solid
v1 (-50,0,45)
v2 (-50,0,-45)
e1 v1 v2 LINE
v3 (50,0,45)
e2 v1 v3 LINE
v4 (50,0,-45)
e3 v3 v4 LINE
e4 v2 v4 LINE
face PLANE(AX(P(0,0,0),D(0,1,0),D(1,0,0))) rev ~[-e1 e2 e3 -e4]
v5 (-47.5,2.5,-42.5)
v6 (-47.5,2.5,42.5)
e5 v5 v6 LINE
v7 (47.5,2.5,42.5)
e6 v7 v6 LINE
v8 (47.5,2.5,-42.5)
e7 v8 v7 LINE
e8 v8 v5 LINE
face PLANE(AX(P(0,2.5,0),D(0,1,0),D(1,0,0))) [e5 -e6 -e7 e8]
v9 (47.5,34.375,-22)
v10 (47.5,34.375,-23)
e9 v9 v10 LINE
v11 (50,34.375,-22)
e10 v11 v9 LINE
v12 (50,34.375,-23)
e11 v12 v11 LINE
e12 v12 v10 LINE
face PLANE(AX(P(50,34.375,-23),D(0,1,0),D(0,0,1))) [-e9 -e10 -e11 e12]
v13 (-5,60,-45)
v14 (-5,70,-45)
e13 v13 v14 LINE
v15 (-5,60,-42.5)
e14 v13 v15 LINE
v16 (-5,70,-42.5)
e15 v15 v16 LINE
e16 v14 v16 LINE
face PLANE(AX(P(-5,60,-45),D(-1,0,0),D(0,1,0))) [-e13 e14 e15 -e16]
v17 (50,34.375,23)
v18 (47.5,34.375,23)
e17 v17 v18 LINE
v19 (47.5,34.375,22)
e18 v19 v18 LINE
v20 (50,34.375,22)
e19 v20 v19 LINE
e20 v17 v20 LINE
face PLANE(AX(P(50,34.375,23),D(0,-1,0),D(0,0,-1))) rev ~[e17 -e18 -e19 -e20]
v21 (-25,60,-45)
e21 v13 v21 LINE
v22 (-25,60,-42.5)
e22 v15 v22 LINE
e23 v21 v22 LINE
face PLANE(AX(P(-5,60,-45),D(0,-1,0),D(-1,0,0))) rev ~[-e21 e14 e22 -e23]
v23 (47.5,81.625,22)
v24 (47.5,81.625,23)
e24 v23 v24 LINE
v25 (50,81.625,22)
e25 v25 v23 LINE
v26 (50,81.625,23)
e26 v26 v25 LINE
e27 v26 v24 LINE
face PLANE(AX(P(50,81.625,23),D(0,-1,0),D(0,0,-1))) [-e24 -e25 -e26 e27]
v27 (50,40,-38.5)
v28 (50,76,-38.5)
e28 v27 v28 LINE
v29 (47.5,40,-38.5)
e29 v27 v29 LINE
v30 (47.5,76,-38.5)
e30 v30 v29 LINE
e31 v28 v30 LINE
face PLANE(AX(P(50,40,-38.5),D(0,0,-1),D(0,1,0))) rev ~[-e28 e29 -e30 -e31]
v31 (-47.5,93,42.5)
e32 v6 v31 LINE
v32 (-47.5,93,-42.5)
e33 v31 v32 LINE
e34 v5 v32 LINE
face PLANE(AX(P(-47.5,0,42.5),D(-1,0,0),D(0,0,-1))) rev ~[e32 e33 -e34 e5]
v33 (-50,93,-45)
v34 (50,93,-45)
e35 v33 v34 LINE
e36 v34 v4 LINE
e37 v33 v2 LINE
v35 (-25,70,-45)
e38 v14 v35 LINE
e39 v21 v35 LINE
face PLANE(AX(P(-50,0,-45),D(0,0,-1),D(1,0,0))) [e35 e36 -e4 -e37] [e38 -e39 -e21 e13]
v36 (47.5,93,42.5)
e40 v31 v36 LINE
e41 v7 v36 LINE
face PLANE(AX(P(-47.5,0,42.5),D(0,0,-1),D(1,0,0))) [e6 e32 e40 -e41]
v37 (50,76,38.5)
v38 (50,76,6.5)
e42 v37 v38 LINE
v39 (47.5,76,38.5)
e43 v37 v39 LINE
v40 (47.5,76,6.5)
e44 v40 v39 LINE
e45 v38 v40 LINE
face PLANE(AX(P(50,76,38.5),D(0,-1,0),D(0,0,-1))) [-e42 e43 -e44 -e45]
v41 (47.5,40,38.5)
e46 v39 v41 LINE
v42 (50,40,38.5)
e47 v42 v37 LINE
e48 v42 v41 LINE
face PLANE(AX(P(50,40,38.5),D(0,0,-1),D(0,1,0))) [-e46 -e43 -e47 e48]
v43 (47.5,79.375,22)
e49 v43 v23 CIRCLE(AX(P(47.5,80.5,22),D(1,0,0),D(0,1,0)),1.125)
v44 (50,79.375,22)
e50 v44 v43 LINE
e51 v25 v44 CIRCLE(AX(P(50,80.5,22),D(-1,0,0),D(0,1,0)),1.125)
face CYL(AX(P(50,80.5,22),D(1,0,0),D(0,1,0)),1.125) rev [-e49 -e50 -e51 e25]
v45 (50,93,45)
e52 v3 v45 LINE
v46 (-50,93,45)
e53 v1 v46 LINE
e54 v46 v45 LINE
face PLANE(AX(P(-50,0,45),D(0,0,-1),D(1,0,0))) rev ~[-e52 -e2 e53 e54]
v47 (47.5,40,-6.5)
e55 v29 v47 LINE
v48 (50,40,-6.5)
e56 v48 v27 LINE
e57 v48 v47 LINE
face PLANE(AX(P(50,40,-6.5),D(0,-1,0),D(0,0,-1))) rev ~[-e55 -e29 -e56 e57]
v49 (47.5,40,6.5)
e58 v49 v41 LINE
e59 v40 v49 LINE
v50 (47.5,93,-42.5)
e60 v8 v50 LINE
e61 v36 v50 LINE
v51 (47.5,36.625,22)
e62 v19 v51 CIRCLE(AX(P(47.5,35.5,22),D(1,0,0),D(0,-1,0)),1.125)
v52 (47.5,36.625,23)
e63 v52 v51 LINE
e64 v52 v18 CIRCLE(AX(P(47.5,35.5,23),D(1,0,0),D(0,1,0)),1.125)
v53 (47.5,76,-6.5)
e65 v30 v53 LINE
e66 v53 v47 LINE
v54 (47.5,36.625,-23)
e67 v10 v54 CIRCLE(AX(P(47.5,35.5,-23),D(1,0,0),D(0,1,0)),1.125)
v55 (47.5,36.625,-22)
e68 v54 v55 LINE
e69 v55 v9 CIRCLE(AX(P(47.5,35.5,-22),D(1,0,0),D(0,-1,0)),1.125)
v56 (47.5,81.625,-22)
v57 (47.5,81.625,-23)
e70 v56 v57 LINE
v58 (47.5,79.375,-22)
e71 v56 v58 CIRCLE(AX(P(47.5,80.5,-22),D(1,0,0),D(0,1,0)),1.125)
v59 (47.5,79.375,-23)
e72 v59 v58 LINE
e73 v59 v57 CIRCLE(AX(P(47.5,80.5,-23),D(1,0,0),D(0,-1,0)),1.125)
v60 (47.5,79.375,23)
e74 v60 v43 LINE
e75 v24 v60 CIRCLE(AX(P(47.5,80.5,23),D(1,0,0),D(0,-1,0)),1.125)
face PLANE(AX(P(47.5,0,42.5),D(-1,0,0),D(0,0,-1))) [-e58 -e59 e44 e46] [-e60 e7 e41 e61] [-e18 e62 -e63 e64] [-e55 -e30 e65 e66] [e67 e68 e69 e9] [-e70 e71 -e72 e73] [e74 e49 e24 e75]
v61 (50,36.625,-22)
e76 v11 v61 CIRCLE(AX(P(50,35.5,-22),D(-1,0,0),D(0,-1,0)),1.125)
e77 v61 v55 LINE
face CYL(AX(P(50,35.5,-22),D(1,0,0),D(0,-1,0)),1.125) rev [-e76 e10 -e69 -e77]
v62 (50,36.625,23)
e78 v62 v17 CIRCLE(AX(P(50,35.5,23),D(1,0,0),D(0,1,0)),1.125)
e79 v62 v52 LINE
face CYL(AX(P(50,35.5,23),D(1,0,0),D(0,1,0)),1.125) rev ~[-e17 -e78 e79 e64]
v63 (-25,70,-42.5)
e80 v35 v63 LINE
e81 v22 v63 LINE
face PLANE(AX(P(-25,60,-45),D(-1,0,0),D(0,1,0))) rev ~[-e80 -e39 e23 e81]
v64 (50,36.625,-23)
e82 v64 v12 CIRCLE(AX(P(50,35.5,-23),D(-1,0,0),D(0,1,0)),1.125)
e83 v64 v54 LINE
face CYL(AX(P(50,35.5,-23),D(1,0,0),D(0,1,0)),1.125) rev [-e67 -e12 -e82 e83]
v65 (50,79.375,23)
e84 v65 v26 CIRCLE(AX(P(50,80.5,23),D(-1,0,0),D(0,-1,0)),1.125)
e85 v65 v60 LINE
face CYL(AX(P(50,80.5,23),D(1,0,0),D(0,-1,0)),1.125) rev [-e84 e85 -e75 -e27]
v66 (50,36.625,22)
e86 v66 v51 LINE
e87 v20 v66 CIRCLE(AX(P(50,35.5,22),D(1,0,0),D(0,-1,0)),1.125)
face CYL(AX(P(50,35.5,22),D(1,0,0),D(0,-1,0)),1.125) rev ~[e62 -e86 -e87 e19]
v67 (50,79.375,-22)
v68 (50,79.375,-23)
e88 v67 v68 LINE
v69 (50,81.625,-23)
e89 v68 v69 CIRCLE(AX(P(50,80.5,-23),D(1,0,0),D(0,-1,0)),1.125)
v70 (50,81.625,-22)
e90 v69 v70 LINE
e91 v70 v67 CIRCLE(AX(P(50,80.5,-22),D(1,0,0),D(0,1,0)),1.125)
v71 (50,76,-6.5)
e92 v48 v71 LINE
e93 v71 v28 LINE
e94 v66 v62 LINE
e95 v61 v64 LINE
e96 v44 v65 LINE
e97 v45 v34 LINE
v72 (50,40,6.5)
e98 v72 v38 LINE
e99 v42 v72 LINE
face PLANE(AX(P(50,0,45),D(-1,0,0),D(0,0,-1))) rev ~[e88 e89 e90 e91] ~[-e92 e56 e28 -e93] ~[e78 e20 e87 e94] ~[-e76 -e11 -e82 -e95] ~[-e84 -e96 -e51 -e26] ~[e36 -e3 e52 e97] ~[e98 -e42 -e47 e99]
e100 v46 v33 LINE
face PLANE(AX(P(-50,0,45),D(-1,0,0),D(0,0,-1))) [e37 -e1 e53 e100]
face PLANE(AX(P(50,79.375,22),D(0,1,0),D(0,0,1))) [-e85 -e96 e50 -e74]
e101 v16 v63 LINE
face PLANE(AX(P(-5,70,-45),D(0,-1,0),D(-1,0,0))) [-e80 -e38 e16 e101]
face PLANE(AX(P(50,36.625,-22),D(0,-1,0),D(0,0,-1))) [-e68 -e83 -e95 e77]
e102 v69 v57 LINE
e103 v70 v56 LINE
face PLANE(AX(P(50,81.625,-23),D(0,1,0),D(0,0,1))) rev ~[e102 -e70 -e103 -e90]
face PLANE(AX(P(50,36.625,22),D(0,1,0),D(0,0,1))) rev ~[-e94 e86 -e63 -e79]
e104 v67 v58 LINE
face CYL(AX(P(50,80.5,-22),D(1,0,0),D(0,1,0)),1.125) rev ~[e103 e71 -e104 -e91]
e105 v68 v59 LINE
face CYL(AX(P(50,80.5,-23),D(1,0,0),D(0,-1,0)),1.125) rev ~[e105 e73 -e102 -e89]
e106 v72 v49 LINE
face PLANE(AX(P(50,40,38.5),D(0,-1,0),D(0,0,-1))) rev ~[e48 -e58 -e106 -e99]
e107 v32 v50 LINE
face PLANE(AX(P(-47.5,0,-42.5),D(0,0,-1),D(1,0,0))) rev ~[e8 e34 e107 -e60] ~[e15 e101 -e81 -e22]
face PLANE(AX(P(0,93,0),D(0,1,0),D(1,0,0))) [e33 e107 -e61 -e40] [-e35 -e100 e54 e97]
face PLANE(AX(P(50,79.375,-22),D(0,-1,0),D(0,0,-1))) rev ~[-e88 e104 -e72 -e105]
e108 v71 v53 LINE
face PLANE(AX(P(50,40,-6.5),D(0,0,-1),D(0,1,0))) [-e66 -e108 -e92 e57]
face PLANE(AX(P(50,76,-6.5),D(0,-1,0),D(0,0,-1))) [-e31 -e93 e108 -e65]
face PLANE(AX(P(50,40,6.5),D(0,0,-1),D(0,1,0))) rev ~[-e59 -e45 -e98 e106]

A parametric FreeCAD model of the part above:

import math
import FreeCAD as App
import Part
import Sketcher
Q = App.Units.Quantity

doc = App.newDocument("Part")
body = doc.addObject("PartDesign::Body", "Body")

# Sketch on XZ plane
sketch1 = body.newObject("Sketcher::SketchObject", "Sketch")
sketch1.AttachmentSupport = (doc.getObject("XZ_Plane"), [""])
sketch1.MapMode = "FlatFace"
sketch1.addGeometry(Part.LineSegment(App.Vector(-50, -45, 0), App.Vector(-50, 45, 0)), False)
sketch1.addGeometry(Part.LineSegment(App.Vector(-50, 45, 0), App.Vector(50, 45, 0)), False)
sketch1.addGeometry(Part.LineSegment(App.Vector(50, 45, 0), App.Vector(50, -45, 0)), False)
sketch1.addGeometry(Part.LineSegment(App.Vector(50, -45, 0), App.Vector(-50, -45, 0)), False)
sketch1.addConstraint(Sketcher.Constraint("Coincident", 0, 2, 1, 1))
sketch1.addConstraint(Sketcher.Constraint("Coincident", 1, 2, 2, 1))
sketch1.addConstraint(Sketcher.Constraint("Coincident", 2, 2, 3, 1))
sketch1.addConstraint(Sketcher.Constraint("Coincident", 3, 2, 0, 1))
sketch1.addConstraint(Sketcher.Constraint("Vertical", 0))
sketch1.addConstraint(Sketcher.Constraint("Horizontal", 1))
sketch1.addConstraint(Sketcher.Constraint("Vertical", 2))
sketch1.addConstraint(Sketcher.Constraint("Horizontal", 3))
sketch1.addConstraint(Sketcher.Constraint("Symmetric", 0, 2, 2, 2, -1, 1))
sketch1.addConstraint(Sketcher.Constraint("DistanceX", 1, 1, 1, 2, Q("100 mm")))
sketch1.addConstraint(Sketcher.Constraint("DistanceY", 0, 1, 0, 2, Q("90 mm")))
pad1 = body.newObject("PartDesign::Pad", "Pad")
pad1.Profile = sketch1
pad1.Length = 2.5
pad1.Reversed = True

# Sketch on XZ plane
sketch2 = body.newObject("Sketcher::SketchObject", "Sketch001")
sketch2.AttachmentSupport = (doc.getObject("XZ_Plane"), [""])
sketch2.MapMode = "FlatFace"
sketch2.addGeometry(Part.LineSegment(App.Vector(-50, -45, 0), App.Vector(-50, 45, 0)), False)
sketch2.addGeometry(Part.LineSegment(App.Vector(-50, 45, 0), App.Vector(50, 45, 0)), False)
sketch2.addGeometry(Part.LineSegment(App.Vector(50, 45, 0), App.Vector(50, -45, 0)), False)
sketch2.addGeometry(Part.LineSegment(App.Vector(50, -45, 0), App.Vector(-50, -45, 0)), False)
sketch2.addGeometry(Part.LineSegment(App.Vector(48, 42, 0), App.Vector(-48, 42, 0)), False)
sketch2.addGeometry(Part.LineSegment(App.Vector(-48, 42, 0), App.Vector(-48, -42, 0)), False)
sketch2.addGeometry(Part.LineSegment(App.Vector(-48, -42, 0), App.Vector(48, -42, 0)), False)
sketch2.addGeometry(Part.LineSegment(App.Vector(48, -42, 0), App.Vector(48, 42, 0)), False)
sketch2.addConstraint(Sketcher.Constraint("Coincident", 0, 2, 1, 1))
sketch2.addConstraint(Sketcher.Constraint("Coincident", 1, 2, 2, 1))
sketch2.addConstraint(Sketcher.Constraint("Coincident", 2, 2, 3, 1))
sketch2.addConstraint(Sketcher.Constraint("Coincident", 3, 2, 0, 1))
sketch2.addConstraint(Sketcher.Constraint("Coincident", 4, 2, 5, 1))
sketch2.addConstraint(Sketcher.Constraint("Coincident", 5, 2, 6, 1))
sketch2.addConstraint(Sketcher.Constraint("Coincident", 6, 2, 7, 1))
sketch2.addConstraint(Sketcher.Constraint("Coincident", 7, 2, 4, 1))
sketch2.addConstraint(Sketcher.Constraint("Vertical", 0))
sketch2.addConstraint(Sketcher.Constraint("Horizontal", 1))
sketch2.addConstraint(Sketcher.Constraint("Vertical", 2))
sketch2.addConstraint(Sketcher.Constraint("Horizontal", 3))
sketch2.addConstraint(Sketcher.Constraint("Horizontal", 4))
sketch2.addConstraint(Sketcher.Constraint("Vertical", 5))
sketch2.addConstraint(Sketcher.Constraint("Horizontal", 6))
sketch2.addConstraint(Sketcher.Constraint("Vertical", 7))
sketch2.addConstraint(Sketcher.Constraint("Symmetric", 0, 2, 2, 2, -1, 1))
sketch2.addConstraint(Sketcher.Constraint("Symmetric", 4, 2, 6, 2, -1, 1))
sketch2.addConstraint(Sketcher.Constraint("DistanceX", 1, 1, 1, 2, Q("100 mm")))
sketch2.addConstraint(Sketcher.Constraint("DistanceX", 4, 2, 4, 1, Q("95 mm")))
sketch2.addConstraint(Sketcher.Constraint("DistanceY", 0, 1, 0, 2, Q("90 mm")))
sketch2.addConstraint(Sketcher.Constraint("DistanceY", 5, 2, 5, 1, Q("85 mm")))
pad2 = body.newObject("PartDesign::Pad", "Pad001")
pad2.Profile = sketch2
pad2.Length = 93
pad2.Reversed = True

# Sketch on YZ plane
sketch3 = body.newObject("Sketcher::SketchObject", "Sketch002")
sketch3.AttachmentSupport = (doc.getObject("YZ_Plane"), [""])
sketch3.MapMode = "FlatFace"
sketch3.AttachmentOffset = App.Placement(App.Vector(0, 0, 50), App.Rotation())
sketch3.addGeometry(Part.LineSegment(App.Vector(76, 38.5, 0), App.Vector(40, 38.5, 0)), False)
sketch3.addGeometry(Part.LineSegment(App.Vector(40, 38.5, 0), App.Vector(40, 6.5, 0)), False)
sketch3.addGeometry(Part.LineSegment(App.Vector(40, 6.5, 0), App.Vector(76, 6.5, 0)), False)
sketch3.addGeometry(Part.LineSegment(App.Vector(76, 6.5, 0), App.Vector(76, 38.5, 0)), False)
sketch3.addGeometry(Part.LineSegment(App.Vector(81.6, 22, 0), App.Vector(81.6, 23, 0)), False)
sketch3.addGeometry(Part.ArcOfCircle(Part.Circle(App.Vector(80.5, 23, 0), App.Vector(0, 0, 1), 1.1), math.radians(0), math.radians(180)), False)
sketch3.addGeometry(Part.LineSegment(App.Vector(79.4, 23, 0), App.Vector(79.4, 22, 0)), False)
sketch3.addGeometry(Part.ArcOfCircle(Part.Circle(App.Vector(80.5, 22, 0), App.Vector(0, 0, 1), 1.1), math.radians(180), math.radians(360)), False)
sketch3.addGeometry(Part.LineSegment(App.Vector(34.4, 23, 0), App.Vector(34.4, 22, 0)), False)
sketch3.addGeometry(Part.ArcOfCircle(Part.Circle(App.Vector(35.5, 22, 0), App.Vector(0, 0, 1), 1.1), math.radians(180), math.radians(360)), False)
sketch3.addGeometry(Part.LineSegment(App.Vector(36.6, 22, 0), App.Vector(36.6, 23, 0)), False)
sketch3.addGeometry(Part.ArcOfCircle(Part.Circle(App.Vector(35.5, 23, 0), App.Vector(0, 0, 1), 1.1), math.radians(0), math.radians(180)), False)
sketch3.addGeometry(Part.LineSegment(App.Vector(76, -6.5, 0), App.Vector(40, -6.5, 0)), False)
sketch3.addGeometry(Part.LineSegment(App.Vector(40, -6.5, 0), App.Vector(40, -38.5, 0)), False)
sketch3.addGeometry(Part.LineSegment(App.Vector(40, -38.5, 0), App.Vector(76, -38.5, 0)), False)
sketch3.addGeometry(Part.LineSegment(App.Vector(76, -38.5, 0), App.Vector(76, -6.5, 0)), False)
sketch3.addGeometry(Part.LineSegment(App.Vector(34.4, -22, 0), App.Vector(34.4, -23, 0)), False)
sketch3.addGeometry(Part.ArcOfCircle(Part.Circle(App.Vector(35.5, -23, 0), App.Vector(0, 0, 1), 1.1), math.radians(180), math.radians(360)), False)
sketch3.addGeometry(Part.LineSegment(App.Vector(36.6, -23, 0), App.Vector(36.6, -22, 0)), False)
sketch3.addGeometry(Part.ArcOfCircle(Part.Circle(App.Vector(35.5, -22, 0), App.Vector(0, 0, 1), 1.1), math.radians(0), math.radians(180)), False)
sketch3.addGeometry(Part.LineSegment(App.Vector(81.6, -23, 0), App.Vector(81.6, -22, 0)), False)
sketch3.addGeometry(Part.ArcOfCircle(Part.Circle(App.Vector(80.5, -22, 0), App.Vector(0, 0, 1), 1.1), math.radians(0), math.radians(180)), False)
sketch3.addGeometry(Part.LineSegment(App.Vector(79.4, -22, 0), App.Vector(79.4, -23, 0)), False)
sketch3.addGeometry(Part.ArcOfCircle(Part.Circle(App.Vector(80.5, -23, 0), App.Vector(0, 0, 1), 1.1), math.radians(180), math.radians(360)), False)
sketch3.addConstraint(Sketcher.Constraint("Coincident", 0, 2, 1, 1))
sketch3.addConstraint(Sketcher.Constraint("Coincident", 1, 2, 2, 1))
sketch3.addConstraint(Sketcher.Constraint("Coincident", 2, 2, 3, 1))
sketch3.addConstraint(Sketcher.Constraint("Coincident", 3, 2, 0, 1))
sketch3.addConstraint(Sketcher.Constraint("Tangent", 4, 2, 5, 1))
sketch3.addConstraint(Sketcher.Constraint("Tangent", 5, 2, 6, 1))
sketch3.addConstraint(Sketcher.Constraint("Tangent", 6, 2, 7, 1))
sketch3.addConstraint(Sketcher.Constraint("Tangent", 7, 2, 4, 1))
sketch3.addConstraint(Sketcher.Constraint("Tangent", 8, 2, 9, 1))
sketch3.addConstraint(Sketcher.Constraint("Tangent", 9, 2, 10, 1))
sketch3.addConstraint(Sketcher.Constraint("Tangent", 10, 2, 11, 1))
sketch3.addConstraint(Sketcher.Constraint("Tangent", 11, 2, 8, 1))
sketch3.addConstraint(Sketcher.Constraint("Coincident", 12, 2, 13, 1))
sketch3.addConstraint(Sketcher.Constraint("Coincident", 13, 2, 14, 1))
sketch3.addConstraint(Sketcher.Constraint("Coincident", 14, 2, 15, 1))
sketch3.addConstraint(Sketcher.Constraint("Coincident", 15, 2, 12, 1))
sketch3.addConstraint(Sketcher.Constraint("Tangent", 16, 2, 17, 1))
sketch3.addConstraint(Sketcher.Constraint("Tangent", 17, 2, 18, 1))
sketch3.addConstraint(Sketcher.Constraint("Tangent", 18, 2, 19, 1))
sketch3.addConstraint(Sketcher.Constraint("Tangent", 19, 2, 16, 1))
sketch3.addConstraint(Sketcher.Constraint("Tangent", 20, 2, 21, 1))
sketch3.addConstraint(Sketcher.Constraint("Tangent", 21, 2, 22, 1))
sketch3.addConstraint(Sketcher.Constraint("Tangent", 22, 2, 23, 1))
sketch3.addConstraint(Sketcher.Constraint("Tangent", 23, 2, 20, 1))
sketch3.addConstraint(Sketcher.Constraint("Horizontal", 0))
sketch3.addConstraint(Sketcher.Constraint("Vertical", 1))
sketch3.addConstraint(Sketcher.Constraint("Horizontal", 2))
sketch3.addConstraint(Sketcher.Constraint("Vertical", 3))
sketch3.addConstraint(Sketcher.Constraint("Vertical", 4))
sketch3.addConstraint(Sketcher.Constraint("Vertical", 6))
sketch3.addConstraint(Sketcher.Constraint("Vertical", 8))
sketch3.addConstraint(Sketcher.Constraint("Vertical", 10))
sketch3.addConstraint(Sketcher.Constraint("Horizontal", 12))
sketch3.addConstraint(Sketcher.Constraint("Vertical", 13))
sketch3.addConstraint(Sketcher.Constraint("Horizontal", 14))
sketch3.addConstraint(Sketcher.Constraint("Vertical", 15))
sketch3.addConstraint(Sketcher.Constraint("Vertical", 16))
sketch3.addConstraint(Sketcher.Constraint("Vertical", 18))
sketch3.addConstraint(Sketcher.Constraint("Vertical", 20))
sketch3.addConstraint(Sketcher.Constraint("Vertical", 22))
sketch3.addConstraint(Sketcher.Constraint("Equal", 7, 9))
sketch3.addConstraint(Sketcher.Constraint("Equal", 11, 17))
sketch3.addConstraint(Sketcher.Constraint("Equal", 19, 21))
sketch3.addConstraint(Sketcher.Constraint("Symmetric", 11, 3, 17, 3, -1))
sketch3.addConstraint(Sketcher.Constraint("Symmetric", 7, 3, 21, 3, -1))
sketch3.addConstraint(Sketcher.Constraint("Symmetric", 1, 2, 12, 2, -1))
sketch3.addConstraint(Sketcher.Constraint("Symmetric", 3, 2, 14, 2, -1))
sketch3.addConstraint(Sketcher.Constraint("Horizontal", 7, 3, 9, 3))
sketch3.addConstraint(Sketcher.Constraint("Horizontal", 5, 3, 11, 3))
sketch3.addConstraint(Sketcher.Constraint("Horizontal", 19, 3, 21, 3))
sketch3.addConstraint(Sketcher.Constraint("Horizontal", 17, 3, 23, 3))
sketch3.addConstraint(Sketcher.Constraint("DistanceX", 0, 2, 0, 1, Q("36 mm")))
sketch3.addConstraint(Sketcher.Constraint("DistanceY", 1, 2, 1, 1, Q("32 mm")))
sketch3.addConstraint(Sketcher.Constraint("DistanceY", 4, 1, 4, 2, Q("1 mm")))
sketch3.addConstraint(Sketcher.Constraint("DistanceY", -1, 1, 5, 3, Q("23 mm")))
sketch3.addConstraint(Sketcher.Constraint("DistanceX", -1, 1, 0, 2, Q("40 mm")))
sketch3.addConstraint(Sketcher.Constraint("Radius", 5, Q("1.125 mm")))
sketch3.addConstraint(Sketcher.Constraint("DistanceX", 9, 3, 7, 3, Q("45 mm")))
sketch3.addConstraint(Sketcher.Constraint("DistanceY", 12, 2, 1, 2, Q("13 mm")))
sketch3.addConstraint(Sketcher.Constraint("DistanceX", -1, 1, 5, 3, Q("80.5 mm")))
pocket1 = body.newObject("PartDesign::Pocket", "Pocket")
pocket1.Profile = sketch3
pocket1.Length = 5

# Sketch on XY plane
sketch4 = body.newObject("Sketcher::SketchObject", "Sketch003")
sketch4.AttachmentSupport = (doc.getObject("XY_Plane"), [""])
sketch4.MapMode = "FlatFace"
sketch4.AttachmentOffset = App.Placement(App.Vector(0, 0, -45), App.Rotation())
sketch4.addGeometry(Part.LineSegment(App.Vector(-5, 70, 0), App.Vector(-5, 60, 0)), False)
sketch4.addGeometry(Part.LineSegment(App.Vector(-5, 60, 0), App.Vector(-25, 60, 0)), False)
sketch4.addGeometry(Part.LineSegment(App.Vector(-25, 60, 0), App.Vector(-25, 70, 0)), False)
sketch4.addGeometry(Part.LineSegment(App.Vector(-25, 70, 0), App.Vector(-5, 70, 0)), False)
sketch4.addConstraint(Sketcher.Constraint("Coincident", 0, 2, 1, 1))
sketch4.addConstraint(Sketcher.Constraint("Coincident", 1, 2, 2, 1))
sketch4.addConstraint(Sketcher.Constraint("Coincident", 2, 2, 3, 1))
sketch4.addConstraint(Sketcher.Constraint("Coincident", 3, 2, 0, 1))
sketch4.addConstraint(Sketcher.Constraint("Vertical", 0))
sketch4.addConstraint(Sketcher.Constraint("Horizontal", 1))
sketch4.addConstraint(Sketcher.Constraint("Vertical", 2))
sketch4.addConstraint(Sketcher.Constraint("Horizontal", 3))
sketch4.addConstraint(Sketcher.Constraint("DistanceX", 1, 2, 1, 1, Q("20 mm")))
sketch4.addConstraint(Sketcher.Constraint("DistanceY", 0, 2, 0, 1, Q("10 mm")))
sketch4.addConstraint(Sketcher.Constraint("DistanceX", 0, 2, -1, 1, Q("5 mm")))
sketch4.addConstraint(Sketcher.Constraint("DistanceY", -1, 1, 0, 2, Q("60 mm")))
pocket2 = body.newObject("PartDesign::Pocket", "Pocket001")
pocket2.Profile = sketch4
pocket2.Length = 5
pocket2.Reversed = True

doc.recompute()
